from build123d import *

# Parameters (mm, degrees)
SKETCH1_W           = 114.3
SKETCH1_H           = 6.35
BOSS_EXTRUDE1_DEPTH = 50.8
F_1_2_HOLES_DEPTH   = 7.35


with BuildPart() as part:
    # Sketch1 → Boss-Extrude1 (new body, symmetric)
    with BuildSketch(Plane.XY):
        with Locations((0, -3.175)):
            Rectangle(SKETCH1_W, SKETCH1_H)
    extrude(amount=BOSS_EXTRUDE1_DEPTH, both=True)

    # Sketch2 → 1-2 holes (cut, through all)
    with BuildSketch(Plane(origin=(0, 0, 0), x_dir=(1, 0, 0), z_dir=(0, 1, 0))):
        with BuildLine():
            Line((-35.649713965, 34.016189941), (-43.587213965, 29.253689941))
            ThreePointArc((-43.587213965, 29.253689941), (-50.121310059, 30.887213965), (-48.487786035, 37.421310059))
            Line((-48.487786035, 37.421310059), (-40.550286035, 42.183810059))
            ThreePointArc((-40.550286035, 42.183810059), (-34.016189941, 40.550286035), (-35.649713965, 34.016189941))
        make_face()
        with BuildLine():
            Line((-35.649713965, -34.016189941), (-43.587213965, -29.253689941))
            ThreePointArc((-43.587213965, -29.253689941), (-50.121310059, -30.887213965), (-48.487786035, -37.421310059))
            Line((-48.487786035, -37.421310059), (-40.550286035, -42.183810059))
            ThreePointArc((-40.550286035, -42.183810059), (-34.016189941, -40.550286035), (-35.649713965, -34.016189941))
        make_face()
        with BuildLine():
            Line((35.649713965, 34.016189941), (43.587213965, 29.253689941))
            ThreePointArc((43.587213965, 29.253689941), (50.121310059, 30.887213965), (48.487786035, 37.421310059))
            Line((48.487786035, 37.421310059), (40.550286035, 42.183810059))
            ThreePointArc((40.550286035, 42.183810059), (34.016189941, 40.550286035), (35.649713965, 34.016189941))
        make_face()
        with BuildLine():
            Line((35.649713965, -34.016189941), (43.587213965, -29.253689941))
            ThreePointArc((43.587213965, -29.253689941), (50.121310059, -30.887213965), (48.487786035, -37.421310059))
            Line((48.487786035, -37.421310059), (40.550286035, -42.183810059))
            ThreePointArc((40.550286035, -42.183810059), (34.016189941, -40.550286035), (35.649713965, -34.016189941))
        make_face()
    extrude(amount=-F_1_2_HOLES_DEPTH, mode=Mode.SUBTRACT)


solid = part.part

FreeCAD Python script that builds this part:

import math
import FreeCAD as App
import Part
import Sketcher
Q = App.Units.Quantity

doc = App.newDocument("Part")
body = doc.addObject("PartDesign::Body", "Body")

# Sketch on XY plane
sketch1 = doc.addObject("Sketcher::SketchObject", "Sketch")
body.addObject(sketch1)
sketch1.AttachmentSupport = (doc.XY_Plane, [""])
sketch1.MapMode = "FlatFace"
sketch1.addGeometry([
    Part.LineSegment(App.Vector(-57, 0, 0), App.Vector(-57, -6, 0)),
    Part.LineSegment(App.Vector(-57, -6, 0), App.Vector(57, -6, 0)),
    Part.LineSegment(App.Vector(57, -6, 0), App.Vector(57, 0, 0)),
    Part.LineSegment(App.Vector(57, 0, 0), App.Vector(-57, 0, 0)),
], False)
sketch1.addConstraint([
    Sketcher.Constraint("Coincident", 0, 2, 1, 1),
    Sketcher.Constraint("Coincident", 1, 2, 2, 1),
    Sketcher.Constraint("Coincident", 2, 2, 3, 1),
    Sketcher.Constraint("Coincident", 3, 2, 0, 1),
    Sketcher.Constraint("Vertical", 0),
    Sketcher.Constraint("Horizontal", 1),
    Sketcher.Constraint("Vertical", 2),
    Sketcher.Constraint("Horizontal", 3),
    Sketcher.Constraint("Symmetric", 2, 2, 3, 2, -1, 1),
    Sketcher.Constraint("DistanceX", 1, 1, 1, 2, Q("4.5 in")),
    Sketcher.Constraint("DistanceY", 0, 2, 0, 1, Q("0.25 in")),
])
pad1 = doc.addObject("PartDesign::Pad", "Pad")
body.addObject(pad1)
pad1.Profile = sketch1
pad1.Length = Q("4 in")
pad1.Midplane = True

# Sketch on XZ plane
sketch2 = doc.addObject("Sketcher::SketchObject", "Sketch001")
body.addObject(sketch2)
sketch2.AttachmentSupport = (doc.XZ_Plane, [""])
sketch2.MapMode = "FlatFace"
sketch2.addGeometry([
    Part.LineSegment(App.Vector(-43.6, -29.3, 0), App.Vector(-35.6, -34, 0)),  # 0
    Part.ArcOfCircle(Part.Circle(App.Vector(-38.1, -38.1, 0), App.Vector(0, 0, 1), 4.8), math.radians(-121), math.radians(59)),  # 1
    Part.LineSegment(App.Vector(-40.6, -42.2, 0), App.Vector(-48.5, -37.4, 0)),  # 2
    Part.ArcOfCircle(Part.Circle(App.Vector(-46, -33.3, 0), App.Vector(0, 0, 1), 4.8), math.radians(59), math.radians(239)),  # 3
    Part.LineSegment(App.Vector(-35.6, 34, 0), App.Vector(-43.6, 29.3, 0)),  # 4
    Part.ArcOfCircle(Part.Circle(App.Vector(-46, 33.3, 0), App.Vector(0, 0, 1), 4.8), math.radians(121), math.radians(301)),  # 5
    Part.LineSegment(App.Vector(-48.5, 37.4, 0), App.Vector(-40.6, 42.2, 0)),  # 6
    Part.ArcOfCircle(Part.Circle(App.Vector(-38.1, 38.1, 0), App.Vector(0, 0, 1), 4.8), math.radians(-59), math.radians(121)),  # 7
    Part.LineSegment(App.Vector(35.6, -34, 0), App.Vector(43.6, -29.3, 0)),  # 8
    Part.ArcOfCircle(Part.Circle(App.Vector(46, -33.3, 0), App.Vector(0, 0, 1), 4.8), math.radians(-59), math.radians(121)),  # 9
    Part.LineSegment(App.Vector(48.5, -37.4, 0), App.Vector(40.6, -42.2, 0)),  # 10
    Part.ArcOfCircle(Part.Circle(App.Vector(38.1, -38.1, 0), App.Vector(0, 0, 1), 4.8), math.radians(121), math.radians(301)),  # 11
    Part.LineSegment(App.Vector(43.6, 29.3, 0), App.Vector(35.6, 34, 0)),  # 12
    Part.ArcOfCircle(Part.Circle(App.Vector(38.1, 38.1, 0), App.Vector(0, 0, 1), 4.8), math.radians(59), math.radians(239)),  # 13
    Part.LineSegment(App.Vector(40.6, 42.2, 0), App.Vector(48.5, 37.4, 0)),  # 14
    Part.ArcOfCircle(Part.Circle(App.Vector(46, 33.3, 0), App.Vector(0, 0, 1), 4.8), math.radians(-121), math.radians(59)),  # 15
], False)
sketch2.addConstraint([
    Sketcher.Constraint("Tangent", 0, 2, 1, 2),
    Sketcher.Constraint("Tangent", 1, 1, 2, 1),
    Sketcher.Constraint("Tangent", 2, 2, 3, 2),
    Sketcher.Constraint("Tangent", 3, 1, 0, 1),
    Sketcher.Constraint("Tangent", 4, 2, 5, 2),
    Sketcher.Constraint("Tangent", 5, 1, 6, 1),
    Sketcher.Constraint("Tangent", 6, 2, 7, 2),
    Sketcher.Constraint("Tangent", 7, 1, 4, 1),
    Sketcher.Constraint("Tangent", 8, 2, 9, 2),
    Sketcher.Constraint("Tangent", 9, 1, 10, 1),
    Sketcher.Constraint("Tangent", 10, 2, 11, 2),
    Sketcher.Constraint("Tangent", 11, 1, 8, 1),
    Sketcher.Constraint("Tangent", 12, 2, 13, 2),
    Sketcher.Constraint("Tangent", 13, 1, 14, 1),
    Sketcher.Constraint("Tangent", 14, 2, 15, 2),
    Sketcher.Constraint("Tangent", 15, 1, 12, 1),
    Sketcher.Constraint("Equal", 1, 3),
    Sketcher.Constraint("Equal", 3, 5),
    Sketcher.Constraint("Equal", 5, 7),
    Sketcher.Constraint("Equal", 7, 9),
    Sketcher.Constraint("Equal", 9, 11),
    Sketcher.Constraint("Equal", 11, 13),
    Sketcher.Constraint("Equal", 13, 15),
    Sketcher.Constraint("Symmetric", 5, 3, 9, 3, -1, 1),
    Sketcher.Constraint("Symmetric", 7, 3, 11, 3, -1, 1),
    Sketcher.Constraint("Symmetric", 1, 3, 13, 3, -1, 1),
    Sketcher.Constraint("Symmetric", 3, 3, 15, 3, -1, 1),
    Sketcher.Constraint("Symmetric", 3, 3, 9, 3, -2),
    Sketcher.Constraint("Symmetric", 1, 3, 11, 3, -2),
    Sketcher.Constraint("Radius", 1, Q("0.1875 in")),
    Sketcher.Constraint("DistanceY", 1, 3, 7, 3, Q("3 in")),
    Sketcher.Constraint("DistanceX", 1, 3, 11, 3, Q("3 in")),
    Sketcher.Constraint("DistanceX", 3, 3, -1, 1, Q("1.8125 in")),
    Sketcher.Constraint("DistanceY", 3, 3, -1, 1, Q("1.3125 in")),
])
pocket1 = doc.addObject("PartDesign::Pocket", "Pocket")
body.addObject(pocket1)
pocket1.Profile = sketch2
pocket1.Type = "ThroughAll"
pocket1.Reversed = True

doc.recompute()
